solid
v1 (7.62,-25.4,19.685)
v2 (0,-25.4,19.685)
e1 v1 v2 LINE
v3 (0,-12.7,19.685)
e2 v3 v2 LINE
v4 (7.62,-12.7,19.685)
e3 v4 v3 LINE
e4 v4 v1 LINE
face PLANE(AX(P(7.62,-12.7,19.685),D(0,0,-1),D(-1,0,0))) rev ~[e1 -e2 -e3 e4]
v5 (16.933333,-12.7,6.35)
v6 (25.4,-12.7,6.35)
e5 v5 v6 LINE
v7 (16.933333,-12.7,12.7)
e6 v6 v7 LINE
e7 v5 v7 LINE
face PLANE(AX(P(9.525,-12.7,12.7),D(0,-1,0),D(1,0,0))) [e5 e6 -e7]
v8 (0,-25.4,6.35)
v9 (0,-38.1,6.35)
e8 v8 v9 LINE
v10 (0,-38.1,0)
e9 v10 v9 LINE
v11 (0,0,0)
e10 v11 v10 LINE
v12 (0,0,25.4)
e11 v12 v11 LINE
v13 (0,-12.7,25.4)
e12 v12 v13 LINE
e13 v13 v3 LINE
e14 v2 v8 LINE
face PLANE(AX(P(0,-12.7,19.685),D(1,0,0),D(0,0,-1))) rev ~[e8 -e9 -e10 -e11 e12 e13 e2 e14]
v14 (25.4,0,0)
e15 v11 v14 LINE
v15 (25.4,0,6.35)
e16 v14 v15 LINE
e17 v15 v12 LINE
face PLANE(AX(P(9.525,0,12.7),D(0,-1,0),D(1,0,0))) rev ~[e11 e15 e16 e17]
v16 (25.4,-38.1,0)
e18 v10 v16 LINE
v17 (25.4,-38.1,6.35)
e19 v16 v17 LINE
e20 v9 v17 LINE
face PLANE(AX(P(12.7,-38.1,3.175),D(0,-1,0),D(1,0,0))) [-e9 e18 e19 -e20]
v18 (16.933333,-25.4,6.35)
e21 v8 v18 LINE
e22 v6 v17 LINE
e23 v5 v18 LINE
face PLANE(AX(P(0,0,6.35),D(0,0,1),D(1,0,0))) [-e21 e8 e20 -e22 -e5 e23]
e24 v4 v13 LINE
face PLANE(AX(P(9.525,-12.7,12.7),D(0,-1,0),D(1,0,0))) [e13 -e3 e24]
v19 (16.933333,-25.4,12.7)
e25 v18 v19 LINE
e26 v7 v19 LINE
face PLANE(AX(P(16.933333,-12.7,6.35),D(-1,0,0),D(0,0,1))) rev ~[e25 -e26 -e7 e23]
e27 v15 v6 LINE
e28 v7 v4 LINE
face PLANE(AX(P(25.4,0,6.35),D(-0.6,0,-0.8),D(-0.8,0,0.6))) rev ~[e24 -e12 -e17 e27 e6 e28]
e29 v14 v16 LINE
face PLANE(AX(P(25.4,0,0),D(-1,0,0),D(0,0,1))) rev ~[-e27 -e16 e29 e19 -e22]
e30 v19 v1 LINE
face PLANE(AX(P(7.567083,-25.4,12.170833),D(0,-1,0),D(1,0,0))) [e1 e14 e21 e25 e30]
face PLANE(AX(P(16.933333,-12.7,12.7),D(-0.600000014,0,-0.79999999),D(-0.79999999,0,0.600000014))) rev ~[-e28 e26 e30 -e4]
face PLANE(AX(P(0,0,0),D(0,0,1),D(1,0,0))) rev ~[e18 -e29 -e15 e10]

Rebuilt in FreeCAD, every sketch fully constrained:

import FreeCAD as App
import Part
import Sketcher
from FreeCAD import Vector
Q = App.Units.Quantity

doc = App.newDocument("Part")
body = doc.addObject("PartDesign::Body", "Body")

# Sketch on XZ plane
sketch1 = doc.addObject("Sketcher::SketchObject", "Sketch")
body.addObject(sketch1)
sketch1.AttachmentSupport = (doc.XZ_Plane, [""])
sketch1.MapMode = "FlatFace"
sketch1.addGeometry([
    Part.LineSegment(Vector(0, 6, 0), Vector(0, 0, 0)),
    Part.LineSegment(Vector(0, 0, 0), Vector(25, 0, 0)),
    Part.LineSegment(Vector(25, 0, 0), Vector(25, 6, 0)),
    Part.LineSegment(Vector(25, 6, 0), Vector(0, 6, 0)),
], False)
sketch1.addConstraint([
    Sketcher.Constraint("Coincident", 0, 2, 1, 1),
    Sketcher.Constraint("Coincident", 1, 2, 2, 1),
    Sketcher.Constraint("Coincident", 2, 2, 3, 1),
    Sketcher.Constraint("Coincident", 3, 2, 0, 1),
    Sketcher.Constraint("Vertical", 0),
    Sketcher.Constraint("Horizontal", 1),
    Sketcher.Constraint("Vertical", 2),
    Sketcher.Constraint("Horizontal", 3),
    Sketcher.Constraint("Coincident", 0, 2, -1, 1),
    Sketcher.Constraint("DistanceX", 1, 1, 1, 2, Q("1 in")),
    Sketcher.Constraint("DistanceY", 0, 2, 0, 1, Q("0.25 in")),
])
pad1 = doc.addObject("PartDesign::Pad", "Pad")
body.addObject(pad1)
pad1.Profile = sketch1
pad1.Length = Q("1.5 in")

# Sketch on XZ plane
sketch2 = doc.addObject("Sketcher::SketchObject", "Sketch001")
body.addObject(sketch2)
sketch2.AttachmentSupport = (doc.XZ_Plane, [""])
sketch2.MapMode = "FlatFace"
sketch2.addGeometry([
    Part.LineSegment(Vector(0, 6, 0), Vector(25, 6, 0)),
    Part.LineSegment(Vector(25, 6, 0), Vector(0, 25, 0)),
    Part.LineSegment(Vector(0, 25, 0), Vector(0, 6, 0)),
], False)
sketch2.addConstraint([
    Sketcher.Constraint("Coincident", 0, 2, 1, 1),
    Sketcher.Constraint("Coincident", 1, 2, 2, 1),
    Sketcher.Constraint("Coincident", 2, 2, 0, 1),
    Sketcher.Constraint("Horizontal", 0),
    Sketcher.Constraint("Vertical", 2),
    Sketcher.Constraint("PointOnObject", 1, 2, -2),
    Sketcher.Constraint("DistanceX", 0, 1, 0, 2, Q("1 in")),
    Sketcher.Constraint("DistanceY", -1, 1, 1, 2, Q("1 in")),
    Sketcher.Constraint("DistanceY", 2, 2, 2, 1, Q("0.75 in")),
])
pad2 = doc.addObject("PartDesign::Pad", "Pad001")
body.addObject(pad2)
pad2.Profile = sketch2
pad2.Length = Q("0.5 in")

# Sketch on XZ plane
sketch3 = doc.addObject("Sketcher::SketchObject", "Sketch002")
body.addObject(sketch3)
sketch3.AttachmentSupport = (doc.XZ_Plane, [""])
sketch3.MapMode = "FlatFace"
sketch3.AttachmentOffset = App.Placement(Vector(0, 0, 0.5 * 25.4), App.Rotation())
sketch3.addGeometry([
    Part.LineSegment(Vector(0, 20, 0), Vector(0, 6, 0)),  # 0
    Part.LineSegment(Vector(0, 6, 0), Vector(17, 6, 0)),  # 1
    Part.LineSegment(Vector(17, 6, 0), Vector(17, 13, 0)),  # 2
    Part.LineSegment(Vector(17, 13, 0), Vector(8, 20, 0)),  # 3
    Part.LineSegment(Vector(8, 20, 0), Vector(0, 20, 0)),  # 4
], False)
sketch3.addConstraint([
    Sketcher.Constraint("Coincident", 0, 2, 1, 1),
    Sketcher.Constraint("Coincident", 1, 2, 2, 1),
    Sketcher.Constraint("Coincident", 2, 2, 3, 1),
    Sketcher.Constraint("Coincident", 3, 2, 4, 1),
    Sketcher.Constraint("Coincident", 4, 2, 0, 1),
    Sketcher.Constraint("Vertical", 0),
    Sketcher.Constraint("Horizontal", 1),
    Sketcher.Constraint("Vertical", 2),
    Sketcher.Constraint("Horizontal", 4),
    Sketcher.Constraint("PointOnObject", 0, 2, -2),
    Sketcher.Constraint("DistanceX", 4, 2, 4, 1, Q("0.3 in")),
    Sketcher.Constraint("DistanceY", 2, 1, 2, 2, Q("0.25 in")),
    Sketcher.Constraint("DistanceY", -1, 1, 2, 2, Q("0.5 in")),
    Sketcher.Constraint("DistanceY", 0, 2, 0, 1, Q("0.525 in")),
    Sketcher.Constraint("DistanceX", 1, 1, 1, 2, Q("16.933333 mm")),
])
pad3 = doc.addObject("PartDesign::Pad", "Pad002")
body.addObject(pad3)
pad3.Profile = sketch3
pad3.Length = Q("0.5 in")

doc.recompute()
